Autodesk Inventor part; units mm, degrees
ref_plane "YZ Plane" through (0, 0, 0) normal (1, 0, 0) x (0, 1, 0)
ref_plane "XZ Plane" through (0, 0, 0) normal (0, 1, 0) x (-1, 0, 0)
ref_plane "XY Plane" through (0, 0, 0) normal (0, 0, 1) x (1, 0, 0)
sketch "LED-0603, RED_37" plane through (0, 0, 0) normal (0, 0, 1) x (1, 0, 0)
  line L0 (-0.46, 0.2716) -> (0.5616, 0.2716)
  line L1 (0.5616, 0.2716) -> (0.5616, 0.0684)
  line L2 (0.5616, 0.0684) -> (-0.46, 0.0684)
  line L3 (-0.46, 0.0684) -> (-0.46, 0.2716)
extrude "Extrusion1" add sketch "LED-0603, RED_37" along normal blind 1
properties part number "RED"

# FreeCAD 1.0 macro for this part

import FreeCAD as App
import Part
import Sketcher
from FreeCAD import Vector

doc = App.newDocument("Part")
body = doc.addObject("PartDesign::Body", "Body")

sketch1 = body.newObject("Sketcher::SketchObject", "Sketch")
sketch1.AttachmentSupport = (doc.getObject("XY_Plane"), [""])
sketch1.MapMode = "FlatFace"
sketch1.addGeometry(Part.LineSegment(Vector(0.5616, 0.2716, 0), Vector(-0.46, 0.2716, 0)), False)
sketch1.addGeometry(Part.LineSegment(Vector(-0.46, 0.2716, 0), Vector(-0.46, 0.0684, 0)), False)
sketch1.addGeometry(Part.LineSegment(Vector(-0.46, 0.0684, 0), Vector(0.5616, 0.0684, 0)), False)
sketch1.addGeometry(Part.LineSegment(Vector(0.5616, 0.0684, 0), Vector(0.5616, 0.2716, 0)), False)
sketch1.addConstraint(Sketcher.Constraint("Coincident", 0, 2, 1, 1))
sketch1.addConstraint(Sketcher.Constraint("Coincident", 1, 2, 2, 1))
sketch1.addConstraint(Sketcher.Constraint("Coincident", 2, 2, 3, 1))
sketch1.addConstraint(Sketcher.Constraint("Coincident", 3, 2, 0, 1))
sketch1.addConstraint(Sketcher.Constraint("Horizontal", 0))
sketch1.addConstraint(Sketcher.Constraint("Vertical", 1))
sketch1.addConstraint(Sketcher.Constraint("Horizontal", 2))
sketch1.addConstraint(Sketcher.Constraint("Vertical", 3))
sketch1.addConstraint(Sketcher.Constraint("DistanceX", 0, 2, -1, 1, 0.46))
sketch1.addConstraint(Sketcher.Constraint("DistanceX", 0, 2, 0, 1, 1.0216))
sketch1.addConstraint(Sketcher.Constraint("DistanceY", 1, 2, 1, 1, 0.2032))
sketch1.addConstraint(Sketcher.Constraint("DistanceY", -1, 1, 0, 2, 0.2716))
pad1 = body.newObject("PartDesign::Pad", "Pad")
pad1.Profile = sketch1
pad1.Length = 1

doc.recompute()
